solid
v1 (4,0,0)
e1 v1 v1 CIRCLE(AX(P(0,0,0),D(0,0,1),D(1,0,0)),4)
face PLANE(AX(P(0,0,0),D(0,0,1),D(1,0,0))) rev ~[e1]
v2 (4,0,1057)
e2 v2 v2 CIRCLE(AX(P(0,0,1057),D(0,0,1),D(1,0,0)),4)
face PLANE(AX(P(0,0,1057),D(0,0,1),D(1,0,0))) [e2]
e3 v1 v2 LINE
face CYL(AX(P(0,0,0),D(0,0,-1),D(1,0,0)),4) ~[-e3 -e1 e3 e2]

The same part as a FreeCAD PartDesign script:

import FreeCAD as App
import Part
import Sketcher

V = App.Vector
Q = App.Units.Quantity

doc = App.newDocument("Part")
body = doc.addObject("PartDesign::Body", "Body")

# Sketch on XY plane
sketch1 = body.newObject("Sketcher::SketchObject", "Sketch")
sketch1.AttachmentSupport = (doc.getObject("XY_Plane"), [""])
sketch1.MapMode = "FlatFace"
sketch1.addGeometry(Part.Circle(V(0, 0, 0), V(0, 0, 1), 4), False)
sketch1.addConstraint(Sketcher.Constraint("Coincident", 0, 3, -1, 1))
sketch1.addConstraint(Sketcher.Constraint("Diameter", 0, Q("8 mm")))
pad1 = body.newObject("PartDesign::Pad", "Pad")
pad1.Profile = sketch1
pad1.Length = 1057

doc.recompute()
